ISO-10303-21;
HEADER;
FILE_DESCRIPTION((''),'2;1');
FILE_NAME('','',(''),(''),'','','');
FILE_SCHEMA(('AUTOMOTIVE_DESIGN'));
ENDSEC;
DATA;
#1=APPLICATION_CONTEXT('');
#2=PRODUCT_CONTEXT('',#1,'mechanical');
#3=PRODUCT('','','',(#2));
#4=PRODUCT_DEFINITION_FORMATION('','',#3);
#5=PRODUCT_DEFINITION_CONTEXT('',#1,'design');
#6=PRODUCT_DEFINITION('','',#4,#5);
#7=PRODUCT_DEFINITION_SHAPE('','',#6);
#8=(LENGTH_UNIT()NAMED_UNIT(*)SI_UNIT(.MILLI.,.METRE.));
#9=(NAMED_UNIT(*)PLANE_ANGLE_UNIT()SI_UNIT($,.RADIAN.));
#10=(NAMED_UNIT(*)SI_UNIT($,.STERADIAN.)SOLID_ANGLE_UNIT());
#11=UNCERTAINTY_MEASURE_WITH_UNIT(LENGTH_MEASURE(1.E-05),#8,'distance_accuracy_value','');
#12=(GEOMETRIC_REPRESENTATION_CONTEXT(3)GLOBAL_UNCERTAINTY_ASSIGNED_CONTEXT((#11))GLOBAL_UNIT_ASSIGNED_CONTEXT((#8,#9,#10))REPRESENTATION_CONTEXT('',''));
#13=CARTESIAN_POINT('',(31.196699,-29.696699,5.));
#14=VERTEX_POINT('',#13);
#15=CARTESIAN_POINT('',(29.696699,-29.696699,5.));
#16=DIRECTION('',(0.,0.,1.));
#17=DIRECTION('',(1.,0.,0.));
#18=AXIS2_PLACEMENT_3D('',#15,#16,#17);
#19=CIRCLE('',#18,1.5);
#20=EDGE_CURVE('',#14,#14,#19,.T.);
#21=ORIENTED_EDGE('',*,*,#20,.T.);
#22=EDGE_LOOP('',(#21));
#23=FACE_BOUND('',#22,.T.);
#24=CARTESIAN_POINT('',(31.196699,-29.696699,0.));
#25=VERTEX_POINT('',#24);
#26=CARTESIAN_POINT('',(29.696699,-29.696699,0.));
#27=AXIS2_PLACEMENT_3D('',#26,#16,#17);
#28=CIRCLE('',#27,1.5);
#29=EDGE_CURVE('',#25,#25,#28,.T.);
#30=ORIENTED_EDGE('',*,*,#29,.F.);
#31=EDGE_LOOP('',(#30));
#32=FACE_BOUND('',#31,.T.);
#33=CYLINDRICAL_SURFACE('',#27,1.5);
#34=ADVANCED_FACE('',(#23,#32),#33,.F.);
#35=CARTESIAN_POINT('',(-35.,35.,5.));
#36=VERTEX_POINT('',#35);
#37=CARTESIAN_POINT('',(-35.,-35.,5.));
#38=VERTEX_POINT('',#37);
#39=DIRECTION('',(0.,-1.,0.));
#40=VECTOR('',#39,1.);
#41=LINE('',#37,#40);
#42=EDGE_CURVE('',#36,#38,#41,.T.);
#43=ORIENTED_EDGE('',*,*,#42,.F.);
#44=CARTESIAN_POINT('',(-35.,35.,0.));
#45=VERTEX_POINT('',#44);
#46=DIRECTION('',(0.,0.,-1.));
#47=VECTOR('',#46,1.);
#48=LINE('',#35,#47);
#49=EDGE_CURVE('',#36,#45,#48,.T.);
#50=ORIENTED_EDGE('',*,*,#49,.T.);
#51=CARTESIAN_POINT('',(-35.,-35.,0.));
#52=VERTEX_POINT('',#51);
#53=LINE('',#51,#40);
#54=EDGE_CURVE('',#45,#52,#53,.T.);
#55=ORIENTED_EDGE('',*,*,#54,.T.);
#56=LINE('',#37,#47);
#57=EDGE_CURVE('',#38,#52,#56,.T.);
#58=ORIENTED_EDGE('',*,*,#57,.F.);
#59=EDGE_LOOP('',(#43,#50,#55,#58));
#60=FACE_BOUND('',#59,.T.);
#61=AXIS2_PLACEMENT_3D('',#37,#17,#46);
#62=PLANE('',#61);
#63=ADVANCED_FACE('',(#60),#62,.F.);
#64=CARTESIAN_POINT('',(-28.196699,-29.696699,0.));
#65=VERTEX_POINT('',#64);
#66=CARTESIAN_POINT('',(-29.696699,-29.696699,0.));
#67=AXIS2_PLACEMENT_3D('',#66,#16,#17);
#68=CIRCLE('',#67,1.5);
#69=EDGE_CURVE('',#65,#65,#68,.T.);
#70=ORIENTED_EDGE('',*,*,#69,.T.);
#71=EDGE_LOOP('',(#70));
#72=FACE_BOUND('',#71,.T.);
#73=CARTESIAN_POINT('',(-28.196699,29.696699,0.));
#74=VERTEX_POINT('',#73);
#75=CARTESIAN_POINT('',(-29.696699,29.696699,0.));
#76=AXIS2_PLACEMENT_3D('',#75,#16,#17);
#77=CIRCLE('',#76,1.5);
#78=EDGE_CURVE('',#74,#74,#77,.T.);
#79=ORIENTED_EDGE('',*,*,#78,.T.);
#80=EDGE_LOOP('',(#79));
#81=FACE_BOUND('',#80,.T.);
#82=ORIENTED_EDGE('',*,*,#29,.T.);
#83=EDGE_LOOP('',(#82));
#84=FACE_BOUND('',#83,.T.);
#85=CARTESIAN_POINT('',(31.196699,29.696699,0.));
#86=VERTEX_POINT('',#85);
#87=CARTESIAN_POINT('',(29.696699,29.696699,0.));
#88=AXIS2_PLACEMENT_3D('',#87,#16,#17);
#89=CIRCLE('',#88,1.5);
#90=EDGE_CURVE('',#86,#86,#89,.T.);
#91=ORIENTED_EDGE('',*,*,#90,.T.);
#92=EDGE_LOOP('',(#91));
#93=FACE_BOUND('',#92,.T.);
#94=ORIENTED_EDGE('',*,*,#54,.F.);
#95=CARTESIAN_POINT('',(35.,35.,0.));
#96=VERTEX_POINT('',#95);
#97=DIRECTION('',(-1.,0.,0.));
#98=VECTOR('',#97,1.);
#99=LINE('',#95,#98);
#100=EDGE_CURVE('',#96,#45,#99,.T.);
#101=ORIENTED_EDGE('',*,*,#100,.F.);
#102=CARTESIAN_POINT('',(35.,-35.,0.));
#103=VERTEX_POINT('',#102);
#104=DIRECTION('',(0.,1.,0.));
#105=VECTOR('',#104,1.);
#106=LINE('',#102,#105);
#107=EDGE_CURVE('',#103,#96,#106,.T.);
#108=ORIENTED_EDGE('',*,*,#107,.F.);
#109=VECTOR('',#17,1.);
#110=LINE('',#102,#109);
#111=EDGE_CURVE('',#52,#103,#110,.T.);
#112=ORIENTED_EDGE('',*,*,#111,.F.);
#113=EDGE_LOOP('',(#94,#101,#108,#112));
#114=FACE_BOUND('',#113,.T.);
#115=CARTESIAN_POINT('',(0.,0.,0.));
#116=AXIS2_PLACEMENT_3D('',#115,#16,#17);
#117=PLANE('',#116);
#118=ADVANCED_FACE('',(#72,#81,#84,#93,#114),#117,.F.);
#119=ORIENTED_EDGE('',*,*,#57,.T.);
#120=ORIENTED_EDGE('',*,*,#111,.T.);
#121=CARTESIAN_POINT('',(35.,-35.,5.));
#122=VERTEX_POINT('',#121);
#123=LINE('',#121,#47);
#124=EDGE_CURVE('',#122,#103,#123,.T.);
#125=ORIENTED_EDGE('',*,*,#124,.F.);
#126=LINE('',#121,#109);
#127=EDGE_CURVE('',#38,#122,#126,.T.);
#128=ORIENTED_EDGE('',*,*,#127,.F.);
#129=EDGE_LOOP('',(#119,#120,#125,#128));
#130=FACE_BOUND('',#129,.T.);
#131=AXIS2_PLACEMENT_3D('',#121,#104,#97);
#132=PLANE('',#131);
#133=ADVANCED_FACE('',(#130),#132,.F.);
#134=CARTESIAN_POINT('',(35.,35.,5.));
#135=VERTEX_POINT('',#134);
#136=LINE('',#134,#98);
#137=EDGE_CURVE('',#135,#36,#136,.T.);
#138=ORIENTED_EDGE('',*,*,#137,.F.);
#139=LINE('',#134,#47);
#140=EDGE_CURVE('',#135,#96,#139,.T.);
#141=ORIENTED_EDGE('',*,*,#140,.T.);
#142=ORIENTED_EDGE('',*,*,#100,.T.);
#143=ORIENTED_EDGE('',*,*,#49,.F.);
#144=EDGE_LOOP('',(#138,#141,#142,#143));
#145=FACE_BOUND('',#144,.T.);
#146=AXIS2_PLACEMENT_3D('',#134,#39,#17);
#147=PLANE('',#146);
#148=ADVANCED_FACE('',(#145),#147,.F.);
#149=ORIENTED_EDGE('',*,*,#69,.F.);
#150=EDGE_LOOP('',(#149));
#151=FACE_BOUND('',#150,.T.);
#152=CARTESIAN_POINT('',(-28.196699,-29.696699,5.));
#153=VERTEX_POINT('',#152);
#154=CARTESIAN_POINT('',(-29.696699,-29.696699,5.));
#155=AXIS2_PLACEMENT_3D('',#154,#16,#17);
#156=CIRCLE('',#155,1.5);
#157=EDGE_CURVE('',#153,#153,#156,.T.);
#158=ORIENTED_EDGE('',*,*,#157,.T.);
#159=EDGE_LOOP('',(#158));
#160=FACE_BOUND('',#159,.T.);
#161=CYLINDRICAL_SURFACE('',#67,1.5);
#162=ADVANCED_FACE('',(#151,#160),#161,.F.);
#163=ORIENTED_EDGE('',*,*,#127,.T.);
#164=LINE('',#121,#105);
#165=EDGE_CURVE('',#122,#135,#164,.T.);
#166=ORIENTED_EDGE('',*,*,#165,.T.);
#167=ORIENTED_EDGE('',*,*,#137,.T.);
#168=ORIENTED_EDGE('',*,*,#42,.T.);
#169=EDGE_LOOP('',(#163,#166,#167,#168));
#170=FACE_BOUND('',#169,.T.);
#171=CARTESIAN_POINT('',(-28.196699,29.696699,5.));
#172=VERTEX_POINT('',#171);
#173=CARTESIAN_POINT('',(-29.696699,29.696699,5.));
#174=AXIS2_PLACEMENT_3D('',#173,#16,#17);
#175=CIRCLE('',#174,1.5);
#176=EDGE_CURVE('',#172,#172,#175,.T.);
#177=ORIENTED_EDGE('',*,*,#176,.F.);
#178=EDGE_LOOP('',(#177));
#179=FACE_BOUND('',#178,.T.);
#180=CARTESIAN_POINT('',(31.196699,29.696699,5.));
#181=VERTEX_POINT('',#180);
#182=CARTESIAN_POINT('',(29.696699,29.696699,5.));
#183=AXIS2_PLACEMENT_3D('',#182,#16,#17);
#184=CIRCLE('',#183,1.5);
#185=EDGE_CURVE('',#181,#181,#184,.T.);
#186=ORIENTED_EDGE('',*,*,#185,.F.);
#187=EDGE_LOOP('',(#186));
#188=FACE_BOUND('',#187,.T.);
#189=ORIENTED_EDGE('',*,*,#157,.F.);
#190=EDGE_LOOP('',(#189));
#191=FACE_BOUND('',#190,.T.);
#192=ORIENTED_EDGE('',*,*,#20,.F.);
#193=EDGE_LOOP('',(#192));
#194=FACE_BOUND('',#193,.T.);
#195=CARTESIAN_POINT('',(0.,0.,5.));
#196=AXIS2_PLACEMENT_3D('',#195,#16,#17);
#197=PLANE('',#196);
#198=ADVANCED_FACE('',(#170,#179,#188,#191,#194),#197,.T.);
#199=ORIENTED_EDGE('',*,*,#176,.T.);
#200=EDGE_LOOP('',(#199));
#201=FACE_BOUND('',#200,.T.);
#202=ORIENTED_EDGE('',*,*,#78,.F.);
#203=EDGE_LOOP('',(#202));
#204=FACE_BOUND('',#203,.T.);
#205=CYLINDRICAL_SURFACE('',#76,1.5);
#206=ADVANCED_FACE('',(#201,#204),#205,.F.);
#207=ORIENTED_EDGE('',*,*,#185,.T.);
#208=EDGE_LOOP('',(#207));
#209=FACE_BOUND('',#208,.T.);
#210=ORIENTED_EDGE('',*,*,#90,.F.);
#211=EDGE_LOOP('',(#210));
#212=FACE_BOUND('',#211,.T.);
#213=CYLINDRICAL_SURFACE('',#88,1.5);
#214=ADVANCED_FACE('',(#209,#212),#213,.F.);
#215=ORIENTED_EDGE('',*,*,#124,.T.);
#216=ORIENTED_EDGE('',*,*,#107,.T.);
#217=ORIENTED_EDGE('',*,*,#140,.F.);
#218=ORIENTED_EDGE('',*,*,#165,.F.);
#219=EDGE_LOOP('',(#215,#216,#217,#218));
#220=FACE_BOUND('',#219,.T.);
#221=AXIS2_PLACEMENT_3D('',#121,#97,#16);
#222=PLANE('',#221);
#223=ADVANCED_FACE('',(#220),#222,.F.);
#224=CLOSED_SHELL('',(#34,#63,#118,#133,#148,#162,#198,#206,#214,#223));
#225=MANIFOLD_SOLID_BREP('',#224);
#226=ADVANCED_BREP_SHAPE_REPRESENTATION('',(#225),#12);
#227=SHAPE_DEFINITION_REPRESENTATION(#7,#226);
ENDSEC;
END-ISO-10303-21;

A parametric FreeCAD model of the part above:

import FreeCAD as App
import Part
import Sketcher
from FreeCAD import Vector


def add_polygon(sketch, points):
    """Adds a closed chain of lines whose ends are joined by coincident constraints."""
    first, n = sketch.GeometryCount, len(points)
    for a, b in zip(points, points[1:] + points[:1]):
        sketch.addGeometry(Part.LineSegment(App.Vector(*a, 0), App.Vector(*b, 0)), False)
    for i in range(n):
        sketch.addConstraint(Sketcher.Constraint("Coincident", first + i, 2, first + (i + 1) % n, 1))

doc = App.newDocument("Part")
body = doc.addObject("PartDesign::Body", "Body")

# Sketch on XY plane
sketch1 = doc.addObject("Sketcher::SketchObject", "Sketch")
body.addObject(sketch1)
sketch1.AttachmentSupport = (doc.XY_Plane, [""])
sketch1.MapMode = "FlatFace"
add_polygon(sketch1, [(-35, 35), (-35, -35), (35, -35), (35, 35)])  # lines 0-3
sketch1.addConstraint([
    Sketcher.Constraint("Vertical", 0),
    Sketcher.Constraint("Horizontal", 1),
    Sketcher.Constraint("Vertical", 2),
    Sketcher.Constraint("Horizontal", 3),
    Sketcher.Constraint("Symmetric", 0, 2, 2, 2, -1, 1),
    Sketcher.Constraint("Equal", 3, 0),
    Sketcher.Constraint("DistanceX", 1, 1, 1, 2, 70.0),
])
pad1 = doc.addObject("PartDesign::Pad", "Pad")
body.addObject(pad1)
pad1.Profile = sketch1
pad1.Length = 5

# Sketch on XY plane
sketch2 = doc.addObject("Sketcher::SketchObject", "Sketch001")
body.addObject(sketch2)
sketch2.AttachmentSupport = (doc.XY_Plane, [""])
sketch2.MapMode = "FlatFace"
sketch2.AttachmentOffset = App.Placement(Vector(0, 0, 5), App.Rotation())
sketch2.addGeometry([
    Part.Circle(Vector(-29.696699, 29.696699, 0), Vector(0, 0, 1), 1.5),
    Part.Circle(Vector(29.696699, 29.696699, 0), Vector(0, 0, 1), 1.5),
    Part.Circle(Vector(29.696699, -29.696699, 0), Vector(0, 0, 1), 1.5),
    Part.Circle(Vector(-29.696699, -29.696699, 0), Vector(0, 0, 1), 1.5),
], False)
sketch2.addConstraint([
    Sketcher.Constraint("Equal", 0, 1),
    Sketcher.Constraint("Equal", 1, 2),
    Sketcher.Constraint("Equal", 2, 3),
    Sketcher.Constraint("Symmetric", 0, 3, 2, 3, -1, 1),
    Sketcher.Constraint("Symmetric", 1, 3, 3, 3, -1, 1),
    Sketcher.Constraint("Symmetric", 0, 3, 1, 3, -2),
    Sketcher.Constraint("Diameter", 0, 3.0),
    Sketcher.Constraint("DistanceX", 0, 3, -1, 1, 29.696699),
    Sketcher.Constraint("DistanceY", -1, 1, 0, 3, 29.696699),
])
pocket1 = doc.addObject("PartDesign::Pocket", "Pocket")
body.addObject(pocket1)
pocket1.Profile = sketch2
pocket1.Length = 5

doc.recompute()
